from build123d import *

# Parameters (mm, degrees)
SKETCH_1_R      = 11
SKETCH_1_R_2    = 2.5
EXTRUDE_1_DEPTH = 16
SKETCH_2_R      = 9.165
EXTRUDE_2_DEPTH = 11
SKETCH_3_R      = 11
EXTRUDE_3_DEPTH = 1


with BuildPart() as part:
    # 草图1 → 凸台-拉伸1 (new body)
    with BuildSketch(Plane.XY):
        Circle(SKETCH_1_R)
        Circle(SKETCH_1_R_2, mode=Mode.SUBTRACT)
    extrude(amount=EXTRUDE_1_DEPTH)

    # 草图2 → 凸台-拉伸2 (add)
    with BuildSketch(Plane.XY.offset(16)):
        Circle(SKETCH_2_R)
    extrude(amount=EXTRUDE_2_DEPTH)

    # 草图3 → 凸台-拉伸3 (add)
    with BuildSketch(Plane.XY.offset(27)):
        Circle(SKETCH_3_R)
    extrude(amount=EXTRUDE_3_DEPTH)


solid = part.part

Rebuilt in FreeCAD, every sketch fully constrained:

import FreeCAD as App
import Part
import Sketcher
from FreeCAD import Vector
Q = App.Units.Quantity

doc = App.newDocument("Part")
body = doc.addObject("PartDesign::Body", "Body")

# Sketch on XY plane
sketch1 = body.newObject("Sketcher::SketchObject", "Sketch")
sketch1.AttachmentSupport = (doc.getObject("XY_Plane"), [""])
sketch1.MapMode = "FlatFace"
sketch1.addGeometry(Part.Circle(Vector(0, 0, 0), Vector(0, 0, 1), 11), False)
sketch1.addGeometry(Part.Circle(Vector(0, 0, 0), Vector(0, 0, 1), 2.5), False)
sketch1.addConstraint(Sketcher.Constraint("Coincident", 0, 3, -1, 1))
sketch1.addConstraint(Sketcher.Constraint("Coincident", 1, 3, -1, 1))
sketch1.addConstraint(Sketcher.Constraint("Diameter", 0, Q("22 mm")))
sketch1.addConstraint(Sketcher.Constraint("Diameter", 1, Q("5 mm")))
pad1 = body.newObject("PartDesign::Pad", "Pad")
pad1.Profile = sketch1
pad1.Length = 16

# Sketch on XY plane
sketch2 = body.newObject("Sketcher::SketchObject", "Sketch001")
sketch2.AttachmentSupport = (doc.getObject("XY_Plane"), [""])
sketch2.MapMode = "FlatFace"
sketch2.AttachmentOffset = App.Placement(Vector(0, 0, 16), App.Rotation())
sketch2.addGeometry(Part.Circle(Vector(0, 0, 0), Vector(0, 0, 1), 9.165), False)
sketch2.addConstraint(Sketcher.Constraint("Coincident", 0, 3, -1, 1))
sketch2.addConstraint(Sketcher.Constraint("Diameter", 0, Q("18.33 mm")))
pad2 = body.newObject("PartDesign::Pad", "Pad001")
pad2.Profile = sketch2
pad2.Length = 11

# Sketch on XY plane
sketch3 = body.newObject("Sketcher::SketchObject", "Sketch002")
sketch3.AttachmentSupport = (doc.getObject("XY_Plane"), [""])
sketch3.MapMode = "FlatFace"
sketch3.AttachmentOffset = App.Placement(Vector(0, 0, 27), App.Rotation())
sketch3.addGeometry(Part.Circle(Vector(0, 0, 0), Vector(0, 0, 1), 11), False)
sketch3.addConstraint(Sketcher.Constraint("Coincident", 0, 3, -1, 1))
sketch3.addConstraint(Sketcher.Constraint("Diameter", 0, Q("22 mm")))
pad3 = body.newObject("PartDesign::Pad", "Pad002")
pad3.Profile = sketch3
pad3.Length = 1

doc.recompute()
